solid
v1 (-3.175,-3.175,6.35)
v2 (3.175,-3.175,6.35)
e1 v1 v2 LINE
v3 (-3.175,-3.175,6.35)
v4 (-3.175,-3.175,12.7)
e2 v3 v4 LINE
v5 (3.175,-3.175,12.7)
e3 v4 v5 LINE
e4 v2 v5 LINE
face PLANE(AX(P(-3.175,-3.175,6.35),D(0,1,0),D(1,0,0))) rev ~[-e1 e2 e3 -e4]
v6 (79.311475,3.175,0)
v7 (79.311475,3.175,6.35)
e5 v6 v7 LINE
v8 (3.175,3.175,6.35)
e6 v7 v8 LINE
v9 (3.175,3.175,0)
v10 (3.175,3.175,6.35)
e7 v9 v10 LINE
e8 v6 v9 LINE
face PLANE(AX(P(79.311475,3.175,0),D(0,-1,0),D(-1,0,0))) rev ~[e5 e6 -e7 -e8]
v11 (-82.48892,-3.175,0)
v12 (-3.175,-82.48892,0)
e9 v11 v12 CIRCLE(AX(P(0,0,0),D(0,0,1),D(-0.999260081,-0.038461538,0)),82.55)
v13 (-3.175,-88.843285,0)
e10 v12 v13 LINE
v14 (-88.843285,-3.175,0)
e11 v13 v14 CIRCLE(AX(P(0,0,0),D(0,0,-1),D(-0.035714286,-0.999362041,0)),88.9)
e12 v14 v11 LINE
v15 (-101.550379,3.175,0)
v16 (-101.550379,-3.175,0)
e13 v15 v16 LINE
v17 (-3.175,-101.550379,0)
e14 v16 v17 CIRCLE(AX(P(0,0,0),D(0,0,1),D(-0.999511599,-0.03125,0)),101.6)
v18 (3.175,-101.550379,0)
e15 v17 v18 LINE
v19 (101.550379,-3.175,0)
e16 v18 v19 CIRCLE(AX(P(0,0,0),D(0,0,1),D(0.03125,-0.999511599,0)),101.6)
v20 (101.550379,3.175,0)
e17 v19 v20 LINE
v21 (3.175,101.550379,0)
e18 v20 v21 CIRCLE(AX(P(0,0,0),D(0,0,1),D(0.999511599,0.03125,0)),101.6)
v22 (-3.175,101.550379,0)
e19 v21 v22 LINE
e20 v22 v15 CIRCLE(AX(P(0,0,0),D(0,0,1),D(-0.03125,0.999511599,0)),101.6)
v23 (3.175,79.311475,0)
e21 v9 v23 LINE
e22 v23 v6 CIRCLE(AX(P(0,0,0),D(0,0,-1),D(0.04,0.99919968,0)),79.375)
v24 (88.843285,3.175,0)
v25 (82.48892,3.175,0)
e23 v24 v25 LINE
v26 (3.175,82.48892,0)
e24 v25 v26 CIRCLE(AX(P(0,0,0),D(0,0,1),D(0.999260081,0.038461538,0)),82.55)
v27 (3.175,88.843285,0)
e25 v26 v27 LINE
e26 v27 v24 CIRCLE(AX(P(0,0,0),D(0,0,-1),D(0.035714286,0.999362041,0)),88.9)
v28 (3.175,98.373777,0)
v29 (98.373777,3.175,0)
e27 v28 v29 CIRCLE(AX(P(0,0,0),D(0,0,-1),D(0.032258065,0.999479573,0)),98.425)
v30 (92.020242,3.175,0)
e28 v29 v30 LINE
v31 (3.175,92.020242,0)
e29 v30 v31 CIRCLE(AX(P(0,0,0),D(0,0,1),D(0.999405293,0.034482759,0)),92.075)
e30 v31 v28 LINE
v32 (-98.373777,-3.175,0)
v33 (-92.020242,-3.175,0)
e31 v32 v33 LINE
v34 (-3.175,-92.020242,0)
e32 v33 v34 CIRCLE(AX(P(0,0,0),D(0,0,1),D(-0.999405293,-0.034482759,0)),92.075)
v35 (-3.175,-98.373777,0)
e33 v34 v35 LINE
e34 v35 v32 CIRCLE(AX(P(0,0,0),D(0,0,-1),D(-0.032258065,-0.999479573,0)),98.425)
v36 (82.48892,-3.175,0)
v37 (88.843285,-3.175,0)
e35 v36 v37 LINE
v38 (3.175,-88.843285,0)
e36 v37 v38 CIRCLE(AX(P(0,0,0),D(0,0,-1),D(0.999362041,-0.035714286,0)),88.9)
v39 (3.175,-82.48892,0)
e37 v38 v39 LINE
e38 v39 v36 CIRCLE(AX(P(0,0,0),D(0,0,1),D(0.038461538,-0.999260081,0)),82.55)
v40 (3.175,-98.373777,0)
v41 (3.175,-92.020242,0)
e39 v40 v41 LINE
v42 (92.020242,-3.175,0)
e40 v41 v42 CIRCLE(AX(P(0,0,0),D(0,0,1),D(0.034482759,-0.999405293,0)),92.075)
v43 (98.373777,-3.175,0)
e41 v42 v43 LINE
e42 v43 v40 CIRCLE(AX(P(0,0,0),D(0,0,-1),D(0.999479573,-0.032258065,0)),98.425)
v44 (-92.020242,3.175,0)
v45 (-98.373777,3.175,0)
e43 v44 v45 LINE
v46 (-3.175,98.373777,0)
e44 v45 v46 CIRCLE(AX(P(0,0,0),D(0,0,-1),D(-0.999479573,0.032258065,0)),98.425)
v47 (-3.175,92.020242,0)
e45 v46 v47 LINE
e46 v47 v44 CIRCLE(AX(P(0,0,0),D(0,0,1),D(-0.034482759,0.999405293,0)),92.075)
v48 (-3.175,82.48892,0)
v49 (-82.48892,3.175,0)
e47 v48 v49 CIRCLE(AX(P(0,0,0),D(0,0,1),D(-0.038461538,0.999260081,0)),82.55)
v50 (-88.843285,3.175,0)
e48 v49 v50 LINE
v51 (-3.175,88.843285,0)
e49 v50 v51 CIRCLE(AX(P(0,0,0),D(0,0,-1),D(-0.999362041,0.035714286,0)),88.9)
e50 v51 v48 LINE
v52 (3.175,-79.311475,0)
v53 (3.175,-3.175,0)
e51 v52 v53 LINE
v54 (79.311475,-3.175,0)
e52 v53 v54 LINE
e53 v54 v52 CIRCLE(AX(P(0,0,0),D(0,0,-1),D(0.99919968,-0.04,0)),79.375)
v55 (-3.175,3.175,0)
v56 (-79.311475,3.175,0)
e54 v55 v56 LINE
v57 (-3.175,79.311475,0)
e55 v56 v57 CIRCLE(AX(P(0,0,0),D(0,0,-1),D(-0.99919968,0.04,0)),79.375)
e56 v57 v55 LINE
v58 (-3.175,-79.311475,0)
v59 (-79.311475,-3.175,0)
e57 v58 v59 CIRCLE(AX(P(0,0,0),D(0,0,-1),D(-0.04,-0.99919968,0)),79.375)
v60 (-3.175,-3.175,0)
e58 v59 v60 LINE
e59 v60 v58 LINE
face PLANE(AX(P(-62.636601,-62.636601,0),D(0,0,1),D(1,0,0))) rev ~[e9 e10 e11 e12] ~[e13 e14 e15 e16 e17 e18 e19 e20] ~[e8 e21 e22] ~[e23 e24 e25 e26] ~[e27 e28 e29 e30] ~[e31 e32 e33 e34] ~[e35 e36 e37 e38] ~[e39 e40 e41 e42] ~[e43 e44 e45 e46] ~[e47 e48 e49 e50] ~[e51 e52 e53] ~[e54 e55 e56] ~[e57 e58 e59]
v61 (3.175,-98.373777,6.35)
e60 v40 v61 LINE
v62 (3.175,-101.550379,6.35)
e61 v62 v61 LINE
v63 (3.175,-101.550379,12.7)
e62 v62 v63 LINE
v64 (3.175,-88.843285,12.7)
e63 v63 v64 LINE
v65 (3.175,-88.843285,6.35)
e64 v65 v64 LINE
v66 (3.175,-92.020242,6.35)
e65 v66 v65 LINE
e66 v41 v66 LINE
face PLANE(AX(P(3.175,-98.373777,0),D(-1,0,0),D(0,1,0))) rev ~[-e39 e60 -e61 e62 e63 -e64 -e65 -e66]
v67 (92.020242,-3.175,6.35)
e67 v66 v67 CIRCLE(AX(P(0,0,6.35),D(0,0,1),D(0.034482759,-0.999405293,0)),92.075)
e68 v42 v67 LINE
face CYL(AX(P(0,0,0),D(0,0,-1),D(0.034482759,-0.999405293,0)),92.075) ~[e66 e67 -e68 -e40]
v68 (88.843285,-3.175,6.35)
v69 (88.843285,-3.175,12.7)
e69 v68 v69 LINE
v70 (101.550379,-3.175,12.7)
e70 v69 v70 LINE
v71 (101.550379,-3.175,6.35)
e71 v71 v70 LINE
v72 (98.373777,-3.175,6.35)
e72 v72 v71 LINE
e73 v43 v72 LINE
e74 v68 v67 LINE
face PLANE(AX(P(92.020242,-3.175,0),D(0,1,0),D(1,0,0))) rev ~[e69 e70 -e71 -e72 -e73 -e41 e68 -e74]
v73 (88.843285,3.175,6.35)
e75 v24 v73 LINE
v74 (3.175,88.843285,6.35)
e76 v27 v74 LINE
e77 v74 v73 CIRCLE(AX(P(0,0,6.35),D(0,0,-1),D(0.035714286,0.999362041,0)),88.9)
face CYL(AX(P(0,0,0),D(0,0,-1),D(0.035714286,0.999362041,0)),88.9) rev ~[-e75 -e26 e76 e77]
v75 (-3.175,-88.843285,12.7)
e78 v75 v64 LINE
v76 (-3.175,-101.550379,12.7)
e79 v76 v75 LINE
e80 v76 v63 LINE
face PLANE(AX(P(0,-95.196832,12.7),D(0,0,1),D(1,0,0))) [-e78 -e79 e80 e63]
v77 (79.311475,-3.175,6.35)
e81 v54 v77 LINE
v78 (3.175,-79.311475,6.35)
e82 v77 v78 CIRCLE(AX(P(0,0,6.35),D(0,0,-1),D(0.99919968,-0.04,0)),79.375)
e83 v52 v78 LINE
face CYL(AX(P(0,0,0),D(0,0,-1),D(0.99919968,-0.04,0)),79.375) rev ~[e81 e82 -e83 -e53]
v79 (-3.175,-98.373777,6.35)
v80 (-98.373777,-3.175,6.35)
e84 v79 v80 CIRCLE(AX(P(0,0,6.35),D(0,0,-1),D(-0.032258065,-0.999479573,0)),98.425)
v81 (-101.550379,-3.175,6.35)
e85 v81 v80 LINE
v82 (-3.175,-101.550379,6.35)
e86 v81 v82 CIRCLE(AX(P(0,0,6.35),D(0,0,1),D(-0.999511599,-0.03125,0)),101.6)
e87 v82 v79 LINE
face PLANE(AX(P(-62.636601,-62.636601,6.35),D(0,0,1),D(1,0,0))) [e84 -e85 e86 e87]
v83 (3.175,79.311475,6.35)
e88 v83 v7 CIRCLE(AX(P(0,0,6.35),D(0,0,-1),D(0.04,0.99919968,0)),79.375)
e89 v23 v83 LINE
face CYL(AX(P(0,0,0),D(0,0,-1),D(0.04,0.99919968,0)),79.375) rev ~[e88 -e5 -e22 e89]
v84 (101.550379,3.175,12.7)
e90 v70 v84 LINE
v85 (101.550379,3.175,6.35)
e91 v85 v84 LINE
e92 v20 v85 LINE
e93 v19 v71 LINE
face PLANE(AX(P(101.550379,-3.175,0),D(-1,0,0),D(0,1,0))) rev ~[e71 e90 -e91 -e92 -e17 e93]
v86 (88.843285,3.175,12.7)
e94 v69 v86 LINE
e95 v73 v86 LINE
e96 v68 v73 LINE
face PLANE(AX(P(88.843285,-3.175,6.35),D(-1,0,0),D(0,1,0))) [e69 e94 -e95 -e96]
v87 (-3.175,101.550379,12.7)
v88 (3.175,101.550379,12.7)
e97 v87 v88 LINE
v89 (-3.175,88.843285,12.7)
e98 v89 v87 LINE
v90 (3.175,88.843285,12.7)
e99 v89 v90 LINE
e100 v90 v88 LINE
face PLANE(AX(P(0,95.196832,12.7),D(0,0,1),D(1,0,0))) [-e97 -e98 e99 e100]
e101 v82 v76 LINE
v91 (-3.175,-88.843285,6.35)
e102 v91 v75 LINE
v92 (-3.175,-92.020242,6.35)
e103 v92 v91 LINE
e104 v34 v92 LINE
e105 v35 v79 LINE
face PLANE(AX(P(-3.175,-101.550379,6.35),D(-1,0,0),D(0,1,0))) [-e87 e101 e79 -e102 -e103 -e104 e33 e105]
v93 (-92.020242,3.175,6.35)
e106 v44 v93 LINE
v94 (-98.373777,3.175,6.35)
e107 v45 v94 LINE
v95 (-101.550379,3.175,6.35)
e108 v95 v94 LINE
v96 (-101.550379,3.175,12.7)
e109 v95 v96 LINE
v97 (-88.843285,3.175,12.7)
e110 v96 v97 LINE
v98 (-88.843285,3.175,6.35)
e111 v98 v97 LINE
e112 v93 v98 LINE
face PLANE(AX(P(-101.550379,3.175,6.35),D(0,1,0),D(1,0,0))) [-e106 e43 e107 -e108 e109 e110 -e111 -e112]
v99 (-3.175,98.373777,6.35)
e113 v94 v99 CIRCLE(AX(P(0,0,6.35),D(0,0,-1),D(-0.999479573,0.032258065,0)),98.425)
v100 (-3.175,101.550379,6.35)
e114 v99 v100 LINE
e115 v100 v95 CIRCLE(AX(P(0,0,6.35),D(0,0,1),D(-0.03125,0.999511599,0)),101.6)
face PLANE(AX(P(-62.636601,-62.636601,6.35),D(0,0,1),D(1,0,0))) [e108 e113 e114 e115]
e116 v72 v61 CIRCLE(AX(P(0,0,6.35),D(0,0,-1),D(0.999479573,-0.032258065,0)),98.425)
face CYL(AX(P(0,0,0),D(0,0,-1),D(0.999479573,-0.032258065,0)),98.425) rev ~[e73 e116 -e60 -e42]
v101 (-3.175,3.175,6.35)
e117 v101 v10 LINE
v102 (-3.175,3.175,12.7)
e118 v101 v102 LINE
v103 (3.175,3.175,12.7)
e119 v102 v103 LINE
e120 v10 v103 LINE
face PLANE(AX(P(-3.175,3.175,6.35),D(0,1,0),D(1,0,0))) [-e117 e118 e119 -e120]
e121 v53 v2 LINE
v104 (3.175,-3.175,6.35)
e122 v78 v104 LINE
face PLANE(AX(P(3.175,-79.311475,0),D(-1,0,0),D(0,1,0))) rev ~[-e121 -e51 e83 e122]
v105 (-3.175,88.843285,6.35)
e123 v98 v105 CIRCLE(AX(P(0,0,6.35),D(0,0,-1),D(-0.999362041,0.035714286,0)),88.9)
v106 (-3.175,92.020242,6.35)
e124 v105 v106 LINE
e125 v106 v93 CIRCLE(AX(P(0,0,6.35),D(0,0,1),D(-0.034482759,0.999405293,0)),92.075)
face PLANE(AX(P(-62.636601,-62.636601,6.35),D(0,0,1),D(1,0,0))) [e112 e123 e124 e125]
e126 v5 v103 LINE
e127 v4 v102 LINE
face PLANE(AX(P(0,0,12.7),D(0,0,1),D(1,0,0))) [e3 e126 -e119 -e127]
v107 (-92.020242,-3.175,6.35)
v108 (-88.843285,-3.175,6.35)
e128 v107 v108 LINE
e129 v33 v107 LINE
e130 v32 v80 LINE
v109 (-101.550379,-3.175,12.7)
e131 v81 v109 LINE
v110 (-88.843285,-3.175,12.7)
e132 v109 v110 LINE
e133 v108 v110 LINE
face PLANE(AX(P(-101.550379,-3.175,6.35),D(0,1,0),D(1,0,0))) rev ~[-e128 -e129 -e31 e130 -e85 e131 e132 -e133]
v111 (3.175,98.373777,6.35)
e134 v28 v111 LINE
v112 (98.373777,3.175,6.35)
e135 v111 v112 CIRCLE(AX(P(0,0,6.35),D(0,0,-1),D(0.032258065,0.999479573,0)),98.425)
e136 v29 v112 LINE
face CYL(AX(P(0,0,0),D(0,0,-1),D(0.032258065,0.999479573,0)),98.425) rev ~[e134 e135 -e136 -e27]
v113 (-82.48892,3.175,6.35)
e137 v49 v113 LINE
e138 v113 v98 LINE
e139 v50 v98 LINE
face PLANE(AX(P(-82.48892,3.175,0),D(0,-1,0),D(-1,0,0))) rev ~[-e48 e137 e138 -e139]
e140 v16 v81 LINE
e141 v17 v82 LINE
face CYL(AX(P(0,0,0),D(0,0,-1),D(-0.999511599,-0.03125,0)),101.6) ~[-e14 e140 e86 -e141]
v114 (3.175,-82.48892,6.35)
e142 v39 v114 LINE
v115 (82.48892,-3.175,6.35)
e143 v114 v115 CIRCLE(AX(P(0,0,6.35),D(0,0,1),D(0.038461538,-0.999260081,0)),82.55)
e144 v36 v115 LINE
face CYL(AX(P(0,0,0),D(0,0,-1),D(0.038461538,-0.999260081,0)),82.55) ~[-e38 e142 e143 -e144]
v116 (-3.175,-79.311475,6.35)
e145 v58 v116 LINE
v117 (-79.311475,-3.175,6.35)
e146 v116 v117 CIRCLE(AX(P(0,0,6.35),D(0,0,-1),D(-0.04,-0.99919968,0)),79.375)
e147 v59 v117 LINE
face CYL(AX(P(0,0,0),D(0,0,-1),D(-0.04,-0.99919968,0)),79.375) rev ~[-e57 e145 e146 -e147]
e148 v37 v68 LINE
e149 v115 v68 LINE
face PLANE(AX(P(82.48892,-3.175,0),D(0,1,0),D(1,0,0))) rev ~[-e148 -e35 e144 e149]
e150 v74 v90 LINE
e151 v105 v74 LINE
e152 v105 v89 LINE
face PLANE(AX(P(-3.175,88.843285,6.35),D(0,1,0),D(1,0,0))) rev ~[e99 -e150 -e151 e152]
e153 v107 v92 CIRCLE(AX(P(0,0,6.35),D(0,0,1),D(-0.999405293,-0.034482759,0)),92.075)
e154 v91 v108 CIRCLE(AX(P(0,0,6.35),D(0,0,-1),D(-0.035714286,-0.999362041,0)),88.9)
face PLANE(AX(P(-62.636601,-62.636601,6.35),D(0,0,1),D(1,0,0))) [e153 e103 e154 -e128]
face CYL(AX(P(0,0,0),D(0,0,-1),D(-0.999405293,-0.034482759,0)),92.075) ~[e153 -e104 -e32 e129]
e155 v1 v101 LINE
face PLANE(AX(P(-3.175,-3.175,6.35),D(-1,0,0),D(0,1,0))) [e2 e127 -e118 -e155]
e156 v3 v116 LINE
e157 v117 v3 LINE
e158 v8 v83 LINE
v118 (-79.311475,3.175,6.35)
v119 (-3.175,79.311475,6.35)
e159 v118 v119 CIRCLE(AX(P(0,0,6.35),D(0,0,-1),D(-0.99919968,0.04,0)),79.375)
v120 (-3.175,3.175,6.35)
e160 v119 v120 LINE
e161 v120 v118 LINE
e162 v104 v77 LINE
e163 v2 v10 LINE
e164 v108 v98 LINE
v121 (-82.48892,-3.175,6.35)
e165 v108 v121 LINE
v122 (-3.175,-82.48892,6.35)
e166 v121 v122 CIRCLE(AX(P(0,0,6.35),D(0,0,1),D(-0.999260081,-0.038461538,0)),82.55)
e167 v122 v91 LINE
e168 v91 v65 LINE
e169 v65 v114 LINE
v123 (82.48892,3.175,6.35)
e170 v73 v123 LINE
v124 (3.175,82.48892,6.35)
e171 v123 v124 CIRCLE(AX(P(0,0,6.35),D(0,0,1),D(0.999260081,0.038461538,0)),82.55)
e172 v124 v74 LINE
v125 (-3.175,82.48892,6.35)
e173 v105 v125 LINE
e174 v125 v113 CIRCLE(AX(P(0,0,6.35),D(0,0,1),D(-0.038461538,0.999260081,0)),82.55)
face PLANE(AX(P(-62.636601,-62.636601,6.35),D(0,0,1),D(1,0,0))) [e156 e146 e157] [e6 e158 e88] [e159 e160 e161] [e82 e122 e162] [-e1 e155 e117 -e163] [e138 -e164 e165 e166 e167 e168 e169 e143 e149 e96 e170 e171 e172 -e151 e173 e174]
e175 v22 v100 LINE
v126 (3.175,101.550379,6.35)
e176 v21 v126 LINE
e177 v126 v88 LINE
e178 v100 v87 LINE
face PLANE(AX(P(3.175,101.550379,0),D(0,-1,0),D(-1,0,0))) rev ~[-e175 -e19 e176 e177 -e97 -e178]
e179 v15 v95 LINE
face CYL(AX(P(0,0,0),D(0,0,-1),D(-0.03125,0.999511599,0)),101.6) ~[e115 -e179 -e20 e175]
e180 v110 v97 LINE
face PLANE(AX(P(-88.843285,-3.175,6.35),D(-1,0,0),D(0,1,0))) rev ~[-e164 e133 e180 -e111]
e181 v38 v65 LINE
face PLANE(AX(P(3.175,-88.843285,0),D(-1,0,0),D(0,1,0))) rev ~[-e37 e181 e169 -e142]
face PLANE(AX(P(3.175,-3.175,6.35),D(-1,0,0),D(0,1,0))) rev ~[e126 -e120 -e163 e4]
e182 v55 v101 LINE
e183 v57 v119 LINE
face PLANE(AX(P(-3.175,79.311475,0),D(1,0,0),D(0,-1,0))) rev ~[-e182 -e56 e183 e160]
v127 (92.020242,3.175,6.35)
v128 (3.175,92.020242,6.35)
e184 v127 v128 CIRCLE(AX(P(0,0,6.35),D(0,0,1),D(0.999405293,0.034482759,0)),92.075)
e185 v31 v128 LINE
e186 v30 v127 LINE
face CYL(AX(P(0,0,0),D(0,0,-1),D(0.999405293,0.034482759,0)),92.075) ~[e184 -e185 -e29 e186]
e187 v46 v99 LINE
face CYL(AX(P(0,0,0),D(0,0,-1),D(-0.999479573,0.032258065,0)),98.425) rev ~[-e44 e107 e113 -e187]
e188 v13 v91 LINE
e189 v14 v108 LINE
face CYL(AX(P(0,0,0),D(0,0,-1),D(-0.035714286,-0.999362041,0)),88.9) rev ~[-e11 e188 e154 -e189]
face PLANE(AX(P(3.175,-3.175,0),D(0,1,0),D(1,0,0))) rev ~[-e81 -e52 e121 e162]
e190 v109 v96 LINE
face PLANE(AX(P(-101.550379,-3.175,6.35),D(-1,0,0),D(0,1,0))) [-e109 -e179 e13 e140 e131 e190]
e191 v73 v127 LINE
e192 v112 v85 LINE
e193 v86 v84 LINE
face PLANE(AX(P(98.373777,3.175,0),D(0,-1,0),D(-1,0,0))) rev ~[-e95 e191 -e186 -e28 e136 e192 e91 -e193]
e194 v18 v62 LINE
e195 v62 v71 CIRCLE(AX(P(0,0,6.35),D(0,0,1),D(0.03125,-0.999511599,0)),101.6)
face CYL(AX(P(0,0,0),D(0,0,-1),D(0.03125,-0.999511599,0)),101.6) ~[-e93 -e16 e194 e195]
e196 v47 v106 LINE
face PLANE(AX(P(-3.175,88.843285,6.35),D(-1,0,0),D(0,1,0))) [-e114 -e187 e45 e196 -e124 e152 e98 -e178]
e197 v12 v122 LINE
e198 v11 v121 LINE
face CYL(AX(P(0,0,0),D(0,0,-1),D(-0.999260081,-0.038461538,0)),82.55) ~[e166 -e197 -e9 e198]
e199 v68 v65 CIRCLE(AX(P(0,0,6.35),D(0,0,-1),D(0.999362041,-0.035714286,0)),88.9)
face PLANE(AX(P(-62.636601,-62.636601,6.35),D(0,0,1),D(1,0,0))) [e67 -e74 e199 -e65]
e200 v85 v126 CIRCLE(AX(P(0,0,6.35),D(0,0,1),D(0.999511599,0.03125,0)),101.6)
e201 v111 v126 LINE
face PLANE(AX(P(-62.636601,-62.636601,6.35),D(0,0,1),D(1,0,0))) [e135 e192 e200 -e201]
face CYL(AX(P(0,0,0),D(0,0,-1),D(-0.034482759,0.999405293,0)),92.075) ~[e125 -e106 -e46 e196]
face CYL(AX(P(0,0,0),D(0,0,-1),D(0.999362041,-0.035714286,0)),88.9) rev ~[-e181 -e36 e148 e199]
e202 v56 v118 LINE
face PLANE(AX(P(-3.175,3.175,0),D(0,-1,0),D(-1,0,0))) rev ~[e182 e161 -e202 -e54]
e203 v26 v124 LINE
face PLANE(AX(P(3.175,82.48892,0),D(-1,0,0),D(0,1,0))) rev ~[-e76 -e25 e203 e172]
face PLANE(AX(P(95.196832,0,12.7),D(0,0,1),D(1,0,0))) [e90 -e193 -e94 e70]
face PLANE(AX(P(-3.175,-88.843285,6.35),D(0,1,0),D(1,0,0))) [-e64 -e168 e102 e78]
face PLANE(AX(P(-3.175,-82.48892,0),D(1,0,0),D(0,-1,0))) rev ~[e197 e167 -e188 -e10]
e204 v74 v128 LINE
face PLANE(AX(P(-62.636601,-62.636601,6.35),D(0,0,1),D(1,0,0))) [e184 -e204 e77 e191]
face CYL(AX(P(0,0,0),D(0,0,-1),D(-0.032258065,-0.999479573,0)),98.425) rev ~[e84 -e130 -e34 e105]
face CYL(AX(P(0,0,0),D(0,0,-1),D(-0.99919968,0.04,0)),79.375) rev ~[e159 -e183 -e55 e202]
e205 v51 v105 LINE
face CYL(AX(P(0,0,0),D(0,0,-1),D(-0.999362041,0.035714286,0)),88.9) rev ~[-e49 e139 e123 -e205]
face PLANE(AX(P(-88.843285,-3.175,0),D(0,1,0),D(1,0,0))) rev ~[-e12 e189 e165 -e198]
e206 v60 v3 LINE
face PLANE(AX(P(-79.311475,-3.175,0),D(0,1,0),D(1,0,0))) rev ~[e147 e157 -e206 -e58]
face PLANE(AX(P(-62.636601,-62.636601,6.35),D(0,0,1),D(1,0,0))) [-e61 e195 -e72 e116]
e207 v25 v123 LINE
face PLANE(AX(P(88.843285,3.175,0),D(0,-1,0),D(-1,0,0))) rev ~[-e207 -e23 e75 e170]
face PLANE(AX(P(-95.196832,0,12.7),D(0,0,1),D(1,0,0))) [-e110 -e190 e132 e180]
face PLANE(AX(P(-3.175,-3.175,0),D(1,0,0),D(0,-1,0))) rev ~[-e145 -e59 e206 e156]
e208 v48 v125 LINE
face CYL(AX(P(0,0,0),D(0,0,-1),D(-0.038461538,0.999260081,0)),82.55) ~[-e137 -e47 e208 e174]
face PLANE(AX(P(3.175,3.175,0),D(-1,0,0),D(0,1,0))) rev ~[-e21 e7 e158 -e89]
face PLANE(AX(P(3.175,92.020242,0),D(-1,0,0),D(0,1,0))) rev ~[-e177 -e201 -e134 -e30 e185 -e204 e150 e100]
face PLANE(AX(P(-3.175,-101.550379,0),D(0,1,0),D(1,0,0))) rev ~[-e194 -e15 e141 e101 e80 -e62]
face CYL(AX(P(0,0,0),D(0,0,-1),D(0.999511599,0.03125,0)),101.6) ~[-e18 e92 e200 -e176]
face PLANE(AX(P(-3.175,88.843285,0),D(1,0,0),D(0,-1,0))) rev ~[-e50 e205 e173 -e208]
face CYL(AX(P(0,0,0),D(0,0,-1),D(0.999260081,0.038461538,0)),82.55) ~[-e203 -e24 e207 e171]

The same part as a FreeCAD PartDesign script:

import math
import FreeCAD as App
import Part
import Sketcher
Q = App.Units.Quantity


def add_polygon(sketch, points):
    """Adds a closed chain of lines whose ends are joined by coincident constraints."""
    first, n = sketch.GeometryCount, len(points)
    for a, b in zip(points, points[1:] + points[:1]):
        sketch.addGeometry(Part.LineSegment(App.Vector(*a, 0), App.Vector(*b, 0)), False)
    for i in range(n):
        sketch.addConstraint(Sketcher.Constraint("Coincident", first + i, 2, first + (i + 1) % n, 1))

doc = App.newDocument("Part")
params = doc.addObject("Spreadsheet::Sheet", "Params")
for row, (alias, value) in enumerate([
    ("sketch1_radius", "4 in"),
    ("sketch1_radius2", "3.5 in"),
    ("sketch1_radius3", "3.25 in"),
    ("sketch1_radius4", "3.125 in"),
    ("sketch1_radius5", "3.625 in"),
    ("pad1_length", "0.25 in"),
    ("sketch2_width", "0.25 in"),
    ("pad2_length", "0.25 in"),
], start=1):
    params.set(f"A{row}", alias)
    params.set(f"B{row}", "=" + value)
    params.setAlias(f"B{row}", alias)

body = doc.addObject("PartDesign::Body", "Body")

# Sketch on XY plane
sketch1 = body.newObject("Sketcher::SketchObject", "Sketch")
sketch1.AttachmentSupport = (doc.getObject("XY_Plane"), [""])
sketch1.MapMode = "FlatFace"
sketch1.addGeometry([
    Part.LineSegment(App.Vector(3, 102, 0), App.Vector(-3, 102, 0)),  # 0
    Part.ArcOfCircle(Part.Circle(App.Vector(0, 0, 0), App.Vector(0, 0, 1), 102), math.radians(92), math.radians(178)),  # 1
    Part.LineSegment(App.Vector(-102, 3, 0), App.Vector(-102, -3, 0)),  # 2
    Part.ArcOfCircle(Part.Circle(App.Vector(0, 0, 0), App.Vector(0, 0, 1), 102), math.radians(-178), math.radians(-92)),  # 3
    Part.LineSegment(App.Vector(-3, -102, 0), App.Vector(3, -102, 0)),  # 4
    Part.ArcOfCircle(Part.Circle(App.Vector(0, 0, 0), App.Vector(0, 0, 1), 102), math.radians(-88), math.radians(-2)),  # 5
    Part.LineSegment(App.Vector(102, -3, 0), App.Vector(102, 3, 0)),  # 6
    Part.ArcOfCircle(Part.Circle(App.Vector(0, 0, 0), App.Vector(0, 0, 1), 102), math.radians(2), math.radians(88)),  # 7
    Part.LineSegment(App.Vector(3, 3, 0), App.Vector(3, 79, 0)),  # 8
    Part.ArcOfCircle(Part.Circle(App.Vector(0, 0, 0), App.Vector(0, 0, 1), 79), math.radians(2), math.radians(88)),  # 9
    Part.LineSegment(App.Vector(79, 3, 0), App.Vector(3, 3, 0)),  # 10
    Part.ArcOfCircle(Part.Circle(App.Vector(0, 0, 0), App.Vector(0, 0, 1), 83), math.radians(92), math.radians(178)),  # 11
    Part.LineSegment(App.Vector(-82, 3, 0), App.Vector(-89, 3, 0)),  # 12
    Part.ArcOfCircle(Part.Circle(App.Vector(0, 0, 0), App.Vector(0, 0, 1), 89), math.radians(92), math.radians(178)),  # 13
    Part.LineSegment(App.Vector(-3, 89, 0), App.Vector(-3, 82, 0)),  # 14
    Part.ArcOfCircle(Part.Circle(App.Vector(0, 0, 0), App.Vector(0, 0, 1), 89), math.radians(2), math.radians(88)),  # 15
    Part.LineSegment(App.Vector(89, 3, 0), App.Vector(82, 3, 0)),  # 16
    Part.ArcOfCircle(Part.Circle(App.Vector(0, 0, 0), App.Vector(0, 0, 1), 83), math.radians(2), math.radians(88)),  # 17
    Part.LineSegment(App.Vector(3, 82, 0), App.Vector(3, 89, 0)),  # 18
    Part.ArcOfCircle(Part.Circle(App.Vector(0, 0, 0), App.Vector(0, 0, 1), 92), math.radians(92), math.radians(178)),  # 19
    Part.LineSegment(App.Vector(-92, 3, 0), App.Vector(-98, 3, 0)),  # 20
    Part.ArcOfCircle(Part.Circle(App.Vector(0, 0, 0), App.Vector(0, 0, 1), 98), math.radians(92), math.radians(178)),  # 21
    Part.LineSegment(App.Vector(-3, 98, 0), App.Vector(-3, 92, 0)),  # 22
    Part.ArcOfCircle(Part.Circle(App.Vector(0, 0, 0), App.Vector(0, 0, 1), 98), math.radians(2), math.radians(88)),  # 23
    Part.LineSegment(App.Vector(98, 3, 0), App.Vector(92, 3, 0)),  # 24
    Part.ArcOfCircle(Part.Circle(App.Vector(0, 0, 0), App.Vector(0, 0, 1), 92), math.radians(2), math.radians(88)),  # 25
    Part.LineSegment(App.Vector(3, 92, 0), App.Vector(3, 98, 0)),  # 26
    Part.LineSegment(App.Vector(-79, -3, 0), App.Vector(-3, -3, 0)),  # 27
    Part.LineSegment(App.Vector(-3, -3, 0), App.Vector(-3, -79, 0)),  # 28
    Part.ArcOfCircle(Part.Circle(App.Vector(0, 0, 0), App.Vector(0, 0, 1), 79), math.radians(-178), math.radians(-92)),  # 29
    Part.ArcOfCircle(Part.Circle(App.Vector(0, 0, 0), App.Vector(0, 0, 1), 98), math.radians(-178), math.radians(-92)),  # 30
    Part.LineSegment(App.Vector(-98, -3, 0), App.Vector(-92, -3, 0)),  # 31
    Part.ArcOfCircle(Part.Circle(App.Vector(0, 0, 0), App.Vector(0, 0, 1), 92), math.radians(-178), math.radians(-92)),  # 32
    Part.LineSegment(App.Vector(-3, -92, 0), App.Vector(-3, -98, 0)),  # 33
    Part.ArcOfCircle(Part.Circle(App.Vector(0, 0, 0), App.Vector(0, 0, 1), 92), math.radians(-88), math.radians(-2)),  # 34
    Part.LineSegment(App.Vector(92, -3, 0), App.Vector(98, -3, 0)),  # 35
    Part.ArcOfCircle(Part.Circle(App.Vector(0, 0, 0), App.Vector(0, 0, 1), 98), math.radians(-88), math.radians(-2)),  # 36
    Part.LineSegment(App.Vector(3, -98, 0), App.Vector(3, -92, 0)),  # 37
    Part.LineSegment(App.Vector(-89, -3, 0), App.Vector(-82, -3, 0)),  # 38
    Part.ArcOfCircle(Part.Circle(App.Vector(0, 0, 0), App.Vector(0, 0, 1), 83), math.radians(-178), math.radians(-92)),  # 39
    Part.LineSegment(App.Vector(-3, -82, 0), App.Vector(-3, -89, 0)),  # 40
    Part.ArcOfCircle(Part.Circle(App.Vector(0, 0, 0), App.Vector(0, 0, 1), 89), math.radians(-178), math.radians(-92)),  # 41
    Part.ArcOfCircle(Part.Circle(App.Vector(0, 0, 0), App.Vector(0, 0, 1), 83), math.radians(-88), math.radians(-2)),  # 42
    Part.LineSegment(App.Vector(82, -3, 0), App.Vector(89, -3, 0)),  # 43
    Part.ArcOfCircle(Part.Circle(App.Vector(0, 0, 0), App.Vector(0, 0, 1), 89), math.radians(-88), math.radians(-2)),  # 44
    Part.LineSegment(App.Vector(3, -89, 0), App.Vector(3, -82, 0)),  # 45
    Part.LineSegment(App.Vector(3, -79, 0), App.Vector(3, -3, 0)),  # 46
    Part.LineSegment(App.Vector(3, -3, 0), App.Vector(79, -3, 0)),  # 47
    Part.ArcOfCircle(Part.Circle(App.Vector(0, 0, 0), App.Vector(0, 0, 1), 79), math.radians(-88), math.radians(-2)),  # 48
    Part.ArcOfCircle(Part.Circle(App.Vector(0, 0, 0), App.Vector(0, 0, 1), 79), math.radians(92), math.radians(178)),  # 49
    Part.LineSegment(App.Vector(-3, 79, 0), App.Vector(-3, 3, 0)),  # 50
    Part.LineSegment(App.Vector(-3, 3, 0), App.Vector(-79, 3, 0)),  # 51
], False)
sketch1.addConstraint([
    Sketcher.Constraint("Coincident", 0, 2, 1, 1),
    Sketcher.Constraint("Coincident", 1, 2, 2, 1),
    Sketcher.Constraint("Coincident", 2, 2, 3, 1),
    Sketcher.Constraint("Coincident", 3, 2, 4, 1),
    Sketcher.Constraint("Coincident", 4, 2, 5, 1),
    Sketcher.Constraint("Coincident", 5, 2, 6, 1),
    Sketcher.Constraint("Coincident", 6, 2, 7, 1),
    Sketcher.Constraint("Coincident", 7, 2, 0, 1),
    Sketcher.Constraint("Coincident", 8, 2, 9, 2),
    Sketcher.Constraint("Coincident", 9, 1, 10, 1),
    Sketcher.Constraint("Coincident", 10, 2, 8, 1),
    Sketcher.Constraint("Coincident", 11, 2, 12, 1),
    Sketcher.Constraint("Coincident", 12, 2, 13, 2),
    Sketcher.Constraint("Coincident", 13, 1, 14, 1),
    Sketcher.Constraint("Coincident", 14, 2, 11, 1),
    Sketcher.Constraint("Coincident", 15, 1, 16, 1),
    Sketcher.Constraint("Coincident", 16, 2, 17, 1),
    Sketcher.Constraint("Coincident", 17, 2, 18, 1),
    Sketcher.Constraint("Coincident", 18, 2, 15, 2),
    Sketcher.Constraint("Coincident", 19, 2, 20, 1),
    Sketcher.Constraint("Coincident", 20, 2, 21, 2),
    Sketcher.Constraint("Coincident", 21, 1, 22, 1),
    Sketcher.Constraint("Coincident", 22, 2, 19, 1),
    Sketcher.Constraint("Coincident", 23, 1, 24, 1),
    Sketcher.Constraint("Coincident", 24, 2, 25, 1),
    Sketcher.Constraint("Coincident", 25, 2, 26, 1),
    Sketcher.Constraint("Coincident", 26, 2, 23, 2),
    Sketcher.Constraint("Coincident", 27, 2, 28, 1),
    Sketcher.Constraint("Coincident", 28, 2, 29, 2),
    Sketcher.Constraint("Coincident", 29, 1, 27, 1),
    Sketcher.Constraint("Coincident", 30, 1, 31, 1),
    Sketcher.Constraint("Coincident", 31, 2, 32, 1),
    Sketcher.Constraint("Coincident", 32, 2, 33, 1),
    Sketcher.Constraint("Coincident", 33, 2, 30, 2),
    Sketcher.Constraint("Coincident", 34, 2, 35, 1),
    Sketcher.Constraint("Coincident", 35, 2, 36, 2),
    Sketcher.Constraint("Coincident", 36, 1, 37, 1),
    Sketcher.Constraint("Coincident", 37, 2, 34, 1),
    Sketcher.Constraint("Coincident", 38, 2, 39, 1),
    Sketcher.Constraint("Coincident", 39, 2, 40, 1),
    Sketcher.Constraint("Coincident", 40, 2, 41, 2),
    Sketcher.Constraint("Coincident", 41, 1, 38, 1),
    Sketcher.Constraint("Coincident", 42, 2, 43, 1),
    Sketcher.Constraint("Coincident", 43, 2, 44, 2),
    Sketcher.Constraint("Coincident", 44, 1, 45, 1),
    Sketcher.Constraint("Coincident", 45, 2, 42, 1),
    Sketcher.Constraint("Coincident", 46, 2, 47, 1),
    Sketcher.Constraint("Coincident", 47, 2, 48, 2),
    Sketcher.Constraint("Coincident", 48, 1, 46, 1),
    Sketcher.Constraint("Coincident", 49, 1, 50, 1),
    Sketcher.Constraint("Coincident", 50, 2, 51, 1),
    Sketcher.Constraint("Coincident", 51, 2, 49, 2),
    Sketcher.Constraint("Horizontal", 0),
    Sketcher.Constraint("Vertical", 2),
    Sketcher.Constraint("Horizontal", 4),
    Sketcher.Constraint("Vertical", 6),
    Sketcher.Constraint("Vertical", 8),
    Sketcher.Constraint("Horizontal", 10),
    Sketcher.Constraint("Horizontal", 12),
    Sketcher.Constraint("Vertical", 14),
    Sketcher.Constraint("Horizontal", 16),
    Sketcher.Constraint("Vertical", 18),
    Sketcher.Constraint("Horizontal", 20),
    Sketcher.Constraint("Vertical", 22),
    Sketcher.Constraint("Horizontal", 24),
    Sketcher.Constraint("Vertical", 26),
    Sketcher.Constraint("Horizontal", 27),
    Sketcher.Constraint("Vertical", 28),
    Sketcher.Constraint("Horizontal", 31),
    Sketcher.Constraint("Vertical", 33),
    Sketcher.Constraint("Horizontal", 35),
    Sketcher.Constraint("Vertical", 37),
    Sketcher.Constraint("Horizontal", 38),
    Sketcher.Constraint("Vertical", 40),
    Sketcher.Constraint("Horizontal", 43),
    Sketcher.Constraint("Vertical", 45),
    Sketcher.Constraint("Vertical", 46),
    Sketcher.Constraint("Horizontal", 47),
    Sketcher.Constraint("Vertical", 50),
    Sketcher.Constraint("Horizontal", 51),
    Sketcher.Constraint("Coincident", 1, 3, -1, 1),
    Sketcher.Constraint("Coincident", 3, 3, -1, 1),
    Sketcher.Constraint("Coincident", 5, 3, -1, 1),
    Sketcher.Constraint("Coincident", 7, 3, -1, 1),
    Sketcher.Constraint("Coincident", 9, 3, -1, 1),
    Sketcher.Constraint("Coincident", 11, 3, -1, 1),
    Sketcher.Constraint("Coincident", 13, 3, -1, 1),
    Sketcher.Constraint("Coincident", 15, 3, -1, 1),
    Sketcher.Constraint("Coincident", 17, 3, -1, 1),
    Sketcher.Constraint("Coincident", 19, 3, -1, 1),
    Sketcher.Constraint("Coincident", 21, 3, -1, 1),
    Sketcher.Constraint("Coincident", 23, 3, -1, 1),
    Sketcher.Constraint("Coincident", 25, 3, -1, 1),
    Sketcher.Constraint("Coincident", 29, 3, -1, 1),
    Sketcher.Constraint("Coincident", 30, 3, -1, 1),
    Sketcher.Constraint("Coincident", 32, 3, -1, 1),
    Sketcher.Constraint("Coincident", 34, 3, -1, 1),
    Sketcher.Constraint("Coincident", 36, 3, -1, 1),
    Sketcher.Constraint("Coincident", 39, 3, -1, 1),
    Sketcher.Constraint("Coincident", 41, 3, -1, 1),
    Sketcher.Constraint("Coincident", 42, 3, -1, 1),
    Sketcher.Constraint("Coincident", 44, 3, -1, 1),
    Sketcher.Constraint("Coincident", 48, 3, -1, 1),
    Sketcher.Constraint("Coincident", 49, 3, -1, 1),
    Sketcher.Constraint("Equal", 1, 3),
    Sketcher.Constraint("Equal", 3, 5),
    Sketcher.Constraint("Equal", 5, 7),
    Sketcher.Constraint("Equal", 13, 15),
    Sketcher.Constraint("Equal", 11, 17),
    Sketcher.Constraint("Equal", 21, 23),
    Sketcher.Constraint("Equal", 19, 25),
    Sketcher.Constraint("Equal", 9, 29),
    Sketcher.Constraint("Equal", 23, 30),
    Sketcher.Constraint("Equal", 25, 32),
    Sketcher.Constraint("Equal", 32, 34),
    Sketcher.Constraint("Equal", 30, 36),
    Sketcher.Constraint("Equal", 17, 39),
    Sketcher.Constraint("Equal", 15, 41),
    Sketcher.Constraint("Equal", 39, 42),
    Sketcher.Constraint("Equal", 41, 44),
    Sketcher.Constraint("Equal", 29, 48),
    Sketcher.Constraint("Equal", 48, 49),
    Sketcher.Constraint("Symmetric", 10, 2, 27, 2, -1, 1),
    Sketcher.Constraint("Symmetric", 46, 2, 50, 2, -1, 1),
    Sketcher.Constraint("Symmetric", 27, 2, 46, 2, -2),
    Sketcher.Constraint("Horizontal", 2, 2, 5, 2),
    Sketcher.Constraint("Horizontal", 6, 2, 9, 1),
    Sketcher.Constraint("Horizontal", 10, 2, 11, 2),
    Sketcher.Constraint("Horizontal", 12, 2, 15, 1),
    Sketcher.Constraint("Horizontal", 14, 2, 17, 2),
    Sketcher.Constraint("Horizontal", 16, 2, 19, 2),
    Sketcher.Constraint("Horizontal", 20, 2, 23, 1),
    Sketcher.Constraint("Horizontal", 22, 2, 25, 2),
    Sketcher.Constraint("Horizontal", 29, 1, 30, 1),
    Sketcher.Constraint("Horizontal", 31, 2, 34, 2),
    Sketcher.Constraint("Horizontal", 33, 2, 36, 1),
    Sketcher.Constraint("Horizontal", 35, 2, 38, 2),
    Sketcher.Constraint("Horizontal", 41, 1, 42, 2),
    Sketcher.Constraint("Horizontal", 40, 2, 44, 1),
    Sketcher.Constraint("Vertical", 0, 2, 3, 2),
    Sketcher.Constraint("Vertical", 7, 2, 8, 2),
    Sketcher.Constraint("Vertical", 3, 2, 13, 1),
    Sketcher.Constraint("Vertical", 14, 2, 21, 1),
    Sketcher.Constraint("Vertical", 28, 2, 32, 2),
    Sketcher.Constraint("Vertical", 33, 2, 39, 2),
    Sketcher.Constraint("Equal", 4, 2),
    Sketcher.Constraint("Radius", 1, Q("4 in")),
    Sketcher.Constraint("Radius", 13, Q("3.5 in")),
    Sketcher.Constraint("Radius", 11, Q("3.25 in")),
    Sketcher.Constraint("Radius", 9, Q("3.125 in")),
    Sketcher.Constraint("Radius", 19, Q("3.625 in")),
    Sketcher.Constraint("Radius", 21, Q("3.875 in")),
    Sketcher.Constraint("DistanceX", 0, 2, 0, 1, Q("0.25 in")),
])
sketch1.setExpression("Constraints[146]", "Params.sketch1_radius")
sketch1.setExpression("Constraints[147]", "Params.sketch1_radius2")
sketch1.setExpression("Constraints[148]", "Params.sketch1_radius3")
sketch1.setExpression("Constraints[149]", "Params.sketch1_radius4")
sketch1.setExpression("Constraints[150]", "Params.sketch1_radius5")
pad1 = body.newObject("PartDesign::Pad", "Pad")
pad1.Profile = sketch1
pad1.setExpression("Length", "Params.pad1_length")

# Sketch on XY plane
sketch2 = body.newObject("Sketcher::SketchObject", "Sketch001")
sketch2.AttachmentSupport = (doc.getObject("XY_Plane"), [""])
sketch2.MapMode = "FlatFace"
sketch2.AttachmentOffset = App.Placement(App.Vector(0, 0, 0.25 * 25.4), App.Rotation())
add_polygon(sketch2, [(-102, 3), (-102, -3), (-89, -3), (-89, 3)])  # lines 0-3
add_polygon(sketch2, [(89, 3), (89, -3), (102, -3), (102, 3)])  # lines 4-7
add_polygon(sketch2, [(-3, 102), (-3, 89), (3, 89), (3, 102)])  # lines 8-11
add_polygon(sketch2, [(-3, -89), (-3, -102), (3, -102), (3, -89)])  # lines 12-15
add_polygon(sketch2, [(-3, 3), (-3, -3), (3, -3), (3, 3)])  # lines 16-19
sketch2.addConstraint([
    Sketcher.Constraint("Vertical", 0),
    Sketcher.Constraint("Horizontal", 1),
    Sketcher.Constraint("Vertical", 2),
    Sketcher.Constraint("Horizontal", 3),
    Sketcher.Constraint("Vertical", 4),
    Sketcher.Constraint("Horizontal", 5),
    Sketcher.Constraint("Vertical", 6),
    Sketcher.Constraint("Horizontal", 7),
    Sketcher.Constraint("Vertical", 8),
    Sketcher.Constraint("Horizontal", 9),
    Sketcher.Constraint("Vertical", 10),
    Sketcher.Constraint("Horizontal", 11),
    Sketcher.Constraint("Vertical", 12),
    Sketcher.Constraint("Horizontal", 13),
    Sketcher.Constraint("Vertical", 14),
    Sketcher.Constraint("Horizontal", 15),
    Sketcher.Constraint("Vertical", 16),
    Sketcher.Constraint("Horizontal", 17),
    Sketcher.Constraint("Vertical", 18),
    Sketcher.Constraint("Horizontal", 19),
    Sketcher.Constraint("Symmetric", 2, 2, 4, 2, -1, 1),
    Sketcher.Constraint("Symmetric", 0, 2, 6, 2, -1, 1),
    Sketcher.Constraint("Symmetric", 10, 2, 12, 2, -1, 1),
    Sketcher.Constraint("Symmetric", 8, 2, 14, 2, -1, 1),
    Sketcher.Constraint("Symmetric", 16, 2, 18, 2, -1, 1),
    Sketcher.Constraint("Horizontal", 1, 2, 4, 2),
    Sketcher.Constraint("Horizontal", 5, 2, 16, 2),
    Sketcher.Constraint("Vertical", 11, 2, 12, 2),
    Sketcher.Constraint("Vertical", 15, 2, 16, 2),
    Sketcher.Constraint("Equal", 19, 0),
    Sketcher.Constraint("Equal", 7, 8),
    Sketcher.Constraint("DistanceX", 9, 1, 9, 2, Q("0.25 in")),
    Sketcher.Constraint("DistanceX", 1, 1, 1, 2, Q("12.707093 mm")),
    Sketcher.Constraint("DistanceX", 0, 2, -1, 1, Q("101.550379 mm")),
    Sketcher.Constraint("DistanceY", -1, 1, 10, 2, Q("101.550379 mm")),
])
sketch2.setExpression("Constraints[51]", "Params.sketch2_width")
pad2 = body.newObject("PartDesign::Pad", "Pad001")
pad2.Profile = sketch2
pad2.setExpression("Length", "Params.pad2_length")

doc.recompute()
